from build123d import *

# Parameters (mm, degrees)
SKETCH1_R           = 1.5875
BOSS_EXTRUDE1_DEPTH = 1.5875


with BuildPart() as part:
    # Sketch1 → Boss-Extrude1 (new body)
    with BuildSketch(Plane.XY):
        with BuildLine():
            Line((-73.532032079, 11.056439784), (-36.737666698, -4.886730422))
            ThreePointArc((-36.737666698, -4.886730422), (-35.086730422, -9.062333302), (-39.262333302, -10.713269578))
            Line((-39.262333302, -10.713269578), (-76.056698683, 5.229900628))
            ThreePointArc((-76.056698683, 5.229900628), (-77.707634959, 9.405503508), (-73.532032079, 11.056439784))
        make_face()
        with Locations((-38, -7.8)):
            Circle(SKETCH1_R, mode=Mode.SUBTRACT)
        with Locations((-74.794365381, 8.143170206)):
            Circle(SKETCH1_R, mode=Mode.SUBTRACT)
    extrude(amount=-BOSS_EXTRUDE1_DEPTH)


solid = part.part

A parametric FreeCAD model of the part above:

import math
import FreeCAD as App
import Part
import Sketcher
from FreeCAD import Vector
Q = App.Units.Quantity

doc = App.newDocument("Part")
body = doc.addObject("PartDesign::Body", "Body")

# Sketch on XY plane
sketch1 = body.newObject("Sketcher::SketchObject", "Sketch")
sketch1.AttachmentSupport = (doc.getObject("XY_Plane"), [""])
sketch1.MapMode = "FlatFace"
sketch1.addGeometry(Part.LineSegment(Vector(-36.7, -4.9, 0), Vector(-73.5, 11.1, 0)), False)
sketch1.addGeometry(Part.ArcOfCircle(Part.Circle(Vector(-74.8, 8.1, 0), Vector(0, 0, 1), 3.2), math.radians(67), math.radians(247)), False)
sketch1.addGeometry(Part.LineSegment(Vector(-76.1, 5.2, 0), Vector(-39.3, -10.7, 0)), False)
sketch1.addGeometry(Part.ArcOfCircle(Part.Circle(Vector(-38, -7.8, 0), Vector(0, 0, 1), 3.2), math.radians(-113), math.radians(67)), False)
sketch1.addGeometry(Part.Circle(Vector(-38, -7.8, 0), Vector(0, 0, 1), 1.6), False)
sketch1.addGeometry(Part.Circle(Vector(-74.8, 8.1, 0), Vector(0, 0, 1), 1.6), False)
sketch1.addConstraint(Sketcher.Constraint("Tangent", 0, 2, 1, 1))
sketch1.addConstraint(Sketcher.Constraint("Tangent", 1, 2, 2, 1))
sketch1.addConstraint(Sketcher.Constraint("Tangent", 2, 2, 3, 1))
sketch1.addConstraint(Sketcher.Constraint("Tangent", 3, 2, 0, 1))
sketch1.addConstraint(Sketcher.Constraint("Coincident", 4, 3, 3, 3))
sketch1.addConstraint(Sketcher.Constraint("Coincident", 5, 3, 1, 3))
sketch1.addConstraint(Sketcher.Constraint("Equal", 1, 3))
sketch1.addConstraint(Sketcher.Constraint("Equal", 4, 5))
sketch1.addConstraint(Sketcher.Constraint("Diameter", 4, Q("0.125 in")))
sketch1.addConstraint(Sketcher.Constraint("Radius", 1, Q("0.125 in")))
sketch1.addConstraint(Sketcher.Constraint("Distance", 0, Q("40.1 mm")))
sketch1.addConstraint(Sketcher.Constraint("DistanceX", 3, 3, -1, 1, Q("38 mm")))
sketch1.addConstraint(Sketcher.Constraint("DistanceY", 3, 3, -1, 1, Q("7.8 mm")))
sketch1.addConstraint(Sketcher.Constraint("DistanceX", 1, 2, -1, 1, Q("76.056699 mm")))
pad1 = body.newObject("PartDesign::Pad", "Pad")
pad1.Profile = sketch1
pad1.Length = Q("0.0625 in")
pad1.Reversed = True

doc.recompute()
